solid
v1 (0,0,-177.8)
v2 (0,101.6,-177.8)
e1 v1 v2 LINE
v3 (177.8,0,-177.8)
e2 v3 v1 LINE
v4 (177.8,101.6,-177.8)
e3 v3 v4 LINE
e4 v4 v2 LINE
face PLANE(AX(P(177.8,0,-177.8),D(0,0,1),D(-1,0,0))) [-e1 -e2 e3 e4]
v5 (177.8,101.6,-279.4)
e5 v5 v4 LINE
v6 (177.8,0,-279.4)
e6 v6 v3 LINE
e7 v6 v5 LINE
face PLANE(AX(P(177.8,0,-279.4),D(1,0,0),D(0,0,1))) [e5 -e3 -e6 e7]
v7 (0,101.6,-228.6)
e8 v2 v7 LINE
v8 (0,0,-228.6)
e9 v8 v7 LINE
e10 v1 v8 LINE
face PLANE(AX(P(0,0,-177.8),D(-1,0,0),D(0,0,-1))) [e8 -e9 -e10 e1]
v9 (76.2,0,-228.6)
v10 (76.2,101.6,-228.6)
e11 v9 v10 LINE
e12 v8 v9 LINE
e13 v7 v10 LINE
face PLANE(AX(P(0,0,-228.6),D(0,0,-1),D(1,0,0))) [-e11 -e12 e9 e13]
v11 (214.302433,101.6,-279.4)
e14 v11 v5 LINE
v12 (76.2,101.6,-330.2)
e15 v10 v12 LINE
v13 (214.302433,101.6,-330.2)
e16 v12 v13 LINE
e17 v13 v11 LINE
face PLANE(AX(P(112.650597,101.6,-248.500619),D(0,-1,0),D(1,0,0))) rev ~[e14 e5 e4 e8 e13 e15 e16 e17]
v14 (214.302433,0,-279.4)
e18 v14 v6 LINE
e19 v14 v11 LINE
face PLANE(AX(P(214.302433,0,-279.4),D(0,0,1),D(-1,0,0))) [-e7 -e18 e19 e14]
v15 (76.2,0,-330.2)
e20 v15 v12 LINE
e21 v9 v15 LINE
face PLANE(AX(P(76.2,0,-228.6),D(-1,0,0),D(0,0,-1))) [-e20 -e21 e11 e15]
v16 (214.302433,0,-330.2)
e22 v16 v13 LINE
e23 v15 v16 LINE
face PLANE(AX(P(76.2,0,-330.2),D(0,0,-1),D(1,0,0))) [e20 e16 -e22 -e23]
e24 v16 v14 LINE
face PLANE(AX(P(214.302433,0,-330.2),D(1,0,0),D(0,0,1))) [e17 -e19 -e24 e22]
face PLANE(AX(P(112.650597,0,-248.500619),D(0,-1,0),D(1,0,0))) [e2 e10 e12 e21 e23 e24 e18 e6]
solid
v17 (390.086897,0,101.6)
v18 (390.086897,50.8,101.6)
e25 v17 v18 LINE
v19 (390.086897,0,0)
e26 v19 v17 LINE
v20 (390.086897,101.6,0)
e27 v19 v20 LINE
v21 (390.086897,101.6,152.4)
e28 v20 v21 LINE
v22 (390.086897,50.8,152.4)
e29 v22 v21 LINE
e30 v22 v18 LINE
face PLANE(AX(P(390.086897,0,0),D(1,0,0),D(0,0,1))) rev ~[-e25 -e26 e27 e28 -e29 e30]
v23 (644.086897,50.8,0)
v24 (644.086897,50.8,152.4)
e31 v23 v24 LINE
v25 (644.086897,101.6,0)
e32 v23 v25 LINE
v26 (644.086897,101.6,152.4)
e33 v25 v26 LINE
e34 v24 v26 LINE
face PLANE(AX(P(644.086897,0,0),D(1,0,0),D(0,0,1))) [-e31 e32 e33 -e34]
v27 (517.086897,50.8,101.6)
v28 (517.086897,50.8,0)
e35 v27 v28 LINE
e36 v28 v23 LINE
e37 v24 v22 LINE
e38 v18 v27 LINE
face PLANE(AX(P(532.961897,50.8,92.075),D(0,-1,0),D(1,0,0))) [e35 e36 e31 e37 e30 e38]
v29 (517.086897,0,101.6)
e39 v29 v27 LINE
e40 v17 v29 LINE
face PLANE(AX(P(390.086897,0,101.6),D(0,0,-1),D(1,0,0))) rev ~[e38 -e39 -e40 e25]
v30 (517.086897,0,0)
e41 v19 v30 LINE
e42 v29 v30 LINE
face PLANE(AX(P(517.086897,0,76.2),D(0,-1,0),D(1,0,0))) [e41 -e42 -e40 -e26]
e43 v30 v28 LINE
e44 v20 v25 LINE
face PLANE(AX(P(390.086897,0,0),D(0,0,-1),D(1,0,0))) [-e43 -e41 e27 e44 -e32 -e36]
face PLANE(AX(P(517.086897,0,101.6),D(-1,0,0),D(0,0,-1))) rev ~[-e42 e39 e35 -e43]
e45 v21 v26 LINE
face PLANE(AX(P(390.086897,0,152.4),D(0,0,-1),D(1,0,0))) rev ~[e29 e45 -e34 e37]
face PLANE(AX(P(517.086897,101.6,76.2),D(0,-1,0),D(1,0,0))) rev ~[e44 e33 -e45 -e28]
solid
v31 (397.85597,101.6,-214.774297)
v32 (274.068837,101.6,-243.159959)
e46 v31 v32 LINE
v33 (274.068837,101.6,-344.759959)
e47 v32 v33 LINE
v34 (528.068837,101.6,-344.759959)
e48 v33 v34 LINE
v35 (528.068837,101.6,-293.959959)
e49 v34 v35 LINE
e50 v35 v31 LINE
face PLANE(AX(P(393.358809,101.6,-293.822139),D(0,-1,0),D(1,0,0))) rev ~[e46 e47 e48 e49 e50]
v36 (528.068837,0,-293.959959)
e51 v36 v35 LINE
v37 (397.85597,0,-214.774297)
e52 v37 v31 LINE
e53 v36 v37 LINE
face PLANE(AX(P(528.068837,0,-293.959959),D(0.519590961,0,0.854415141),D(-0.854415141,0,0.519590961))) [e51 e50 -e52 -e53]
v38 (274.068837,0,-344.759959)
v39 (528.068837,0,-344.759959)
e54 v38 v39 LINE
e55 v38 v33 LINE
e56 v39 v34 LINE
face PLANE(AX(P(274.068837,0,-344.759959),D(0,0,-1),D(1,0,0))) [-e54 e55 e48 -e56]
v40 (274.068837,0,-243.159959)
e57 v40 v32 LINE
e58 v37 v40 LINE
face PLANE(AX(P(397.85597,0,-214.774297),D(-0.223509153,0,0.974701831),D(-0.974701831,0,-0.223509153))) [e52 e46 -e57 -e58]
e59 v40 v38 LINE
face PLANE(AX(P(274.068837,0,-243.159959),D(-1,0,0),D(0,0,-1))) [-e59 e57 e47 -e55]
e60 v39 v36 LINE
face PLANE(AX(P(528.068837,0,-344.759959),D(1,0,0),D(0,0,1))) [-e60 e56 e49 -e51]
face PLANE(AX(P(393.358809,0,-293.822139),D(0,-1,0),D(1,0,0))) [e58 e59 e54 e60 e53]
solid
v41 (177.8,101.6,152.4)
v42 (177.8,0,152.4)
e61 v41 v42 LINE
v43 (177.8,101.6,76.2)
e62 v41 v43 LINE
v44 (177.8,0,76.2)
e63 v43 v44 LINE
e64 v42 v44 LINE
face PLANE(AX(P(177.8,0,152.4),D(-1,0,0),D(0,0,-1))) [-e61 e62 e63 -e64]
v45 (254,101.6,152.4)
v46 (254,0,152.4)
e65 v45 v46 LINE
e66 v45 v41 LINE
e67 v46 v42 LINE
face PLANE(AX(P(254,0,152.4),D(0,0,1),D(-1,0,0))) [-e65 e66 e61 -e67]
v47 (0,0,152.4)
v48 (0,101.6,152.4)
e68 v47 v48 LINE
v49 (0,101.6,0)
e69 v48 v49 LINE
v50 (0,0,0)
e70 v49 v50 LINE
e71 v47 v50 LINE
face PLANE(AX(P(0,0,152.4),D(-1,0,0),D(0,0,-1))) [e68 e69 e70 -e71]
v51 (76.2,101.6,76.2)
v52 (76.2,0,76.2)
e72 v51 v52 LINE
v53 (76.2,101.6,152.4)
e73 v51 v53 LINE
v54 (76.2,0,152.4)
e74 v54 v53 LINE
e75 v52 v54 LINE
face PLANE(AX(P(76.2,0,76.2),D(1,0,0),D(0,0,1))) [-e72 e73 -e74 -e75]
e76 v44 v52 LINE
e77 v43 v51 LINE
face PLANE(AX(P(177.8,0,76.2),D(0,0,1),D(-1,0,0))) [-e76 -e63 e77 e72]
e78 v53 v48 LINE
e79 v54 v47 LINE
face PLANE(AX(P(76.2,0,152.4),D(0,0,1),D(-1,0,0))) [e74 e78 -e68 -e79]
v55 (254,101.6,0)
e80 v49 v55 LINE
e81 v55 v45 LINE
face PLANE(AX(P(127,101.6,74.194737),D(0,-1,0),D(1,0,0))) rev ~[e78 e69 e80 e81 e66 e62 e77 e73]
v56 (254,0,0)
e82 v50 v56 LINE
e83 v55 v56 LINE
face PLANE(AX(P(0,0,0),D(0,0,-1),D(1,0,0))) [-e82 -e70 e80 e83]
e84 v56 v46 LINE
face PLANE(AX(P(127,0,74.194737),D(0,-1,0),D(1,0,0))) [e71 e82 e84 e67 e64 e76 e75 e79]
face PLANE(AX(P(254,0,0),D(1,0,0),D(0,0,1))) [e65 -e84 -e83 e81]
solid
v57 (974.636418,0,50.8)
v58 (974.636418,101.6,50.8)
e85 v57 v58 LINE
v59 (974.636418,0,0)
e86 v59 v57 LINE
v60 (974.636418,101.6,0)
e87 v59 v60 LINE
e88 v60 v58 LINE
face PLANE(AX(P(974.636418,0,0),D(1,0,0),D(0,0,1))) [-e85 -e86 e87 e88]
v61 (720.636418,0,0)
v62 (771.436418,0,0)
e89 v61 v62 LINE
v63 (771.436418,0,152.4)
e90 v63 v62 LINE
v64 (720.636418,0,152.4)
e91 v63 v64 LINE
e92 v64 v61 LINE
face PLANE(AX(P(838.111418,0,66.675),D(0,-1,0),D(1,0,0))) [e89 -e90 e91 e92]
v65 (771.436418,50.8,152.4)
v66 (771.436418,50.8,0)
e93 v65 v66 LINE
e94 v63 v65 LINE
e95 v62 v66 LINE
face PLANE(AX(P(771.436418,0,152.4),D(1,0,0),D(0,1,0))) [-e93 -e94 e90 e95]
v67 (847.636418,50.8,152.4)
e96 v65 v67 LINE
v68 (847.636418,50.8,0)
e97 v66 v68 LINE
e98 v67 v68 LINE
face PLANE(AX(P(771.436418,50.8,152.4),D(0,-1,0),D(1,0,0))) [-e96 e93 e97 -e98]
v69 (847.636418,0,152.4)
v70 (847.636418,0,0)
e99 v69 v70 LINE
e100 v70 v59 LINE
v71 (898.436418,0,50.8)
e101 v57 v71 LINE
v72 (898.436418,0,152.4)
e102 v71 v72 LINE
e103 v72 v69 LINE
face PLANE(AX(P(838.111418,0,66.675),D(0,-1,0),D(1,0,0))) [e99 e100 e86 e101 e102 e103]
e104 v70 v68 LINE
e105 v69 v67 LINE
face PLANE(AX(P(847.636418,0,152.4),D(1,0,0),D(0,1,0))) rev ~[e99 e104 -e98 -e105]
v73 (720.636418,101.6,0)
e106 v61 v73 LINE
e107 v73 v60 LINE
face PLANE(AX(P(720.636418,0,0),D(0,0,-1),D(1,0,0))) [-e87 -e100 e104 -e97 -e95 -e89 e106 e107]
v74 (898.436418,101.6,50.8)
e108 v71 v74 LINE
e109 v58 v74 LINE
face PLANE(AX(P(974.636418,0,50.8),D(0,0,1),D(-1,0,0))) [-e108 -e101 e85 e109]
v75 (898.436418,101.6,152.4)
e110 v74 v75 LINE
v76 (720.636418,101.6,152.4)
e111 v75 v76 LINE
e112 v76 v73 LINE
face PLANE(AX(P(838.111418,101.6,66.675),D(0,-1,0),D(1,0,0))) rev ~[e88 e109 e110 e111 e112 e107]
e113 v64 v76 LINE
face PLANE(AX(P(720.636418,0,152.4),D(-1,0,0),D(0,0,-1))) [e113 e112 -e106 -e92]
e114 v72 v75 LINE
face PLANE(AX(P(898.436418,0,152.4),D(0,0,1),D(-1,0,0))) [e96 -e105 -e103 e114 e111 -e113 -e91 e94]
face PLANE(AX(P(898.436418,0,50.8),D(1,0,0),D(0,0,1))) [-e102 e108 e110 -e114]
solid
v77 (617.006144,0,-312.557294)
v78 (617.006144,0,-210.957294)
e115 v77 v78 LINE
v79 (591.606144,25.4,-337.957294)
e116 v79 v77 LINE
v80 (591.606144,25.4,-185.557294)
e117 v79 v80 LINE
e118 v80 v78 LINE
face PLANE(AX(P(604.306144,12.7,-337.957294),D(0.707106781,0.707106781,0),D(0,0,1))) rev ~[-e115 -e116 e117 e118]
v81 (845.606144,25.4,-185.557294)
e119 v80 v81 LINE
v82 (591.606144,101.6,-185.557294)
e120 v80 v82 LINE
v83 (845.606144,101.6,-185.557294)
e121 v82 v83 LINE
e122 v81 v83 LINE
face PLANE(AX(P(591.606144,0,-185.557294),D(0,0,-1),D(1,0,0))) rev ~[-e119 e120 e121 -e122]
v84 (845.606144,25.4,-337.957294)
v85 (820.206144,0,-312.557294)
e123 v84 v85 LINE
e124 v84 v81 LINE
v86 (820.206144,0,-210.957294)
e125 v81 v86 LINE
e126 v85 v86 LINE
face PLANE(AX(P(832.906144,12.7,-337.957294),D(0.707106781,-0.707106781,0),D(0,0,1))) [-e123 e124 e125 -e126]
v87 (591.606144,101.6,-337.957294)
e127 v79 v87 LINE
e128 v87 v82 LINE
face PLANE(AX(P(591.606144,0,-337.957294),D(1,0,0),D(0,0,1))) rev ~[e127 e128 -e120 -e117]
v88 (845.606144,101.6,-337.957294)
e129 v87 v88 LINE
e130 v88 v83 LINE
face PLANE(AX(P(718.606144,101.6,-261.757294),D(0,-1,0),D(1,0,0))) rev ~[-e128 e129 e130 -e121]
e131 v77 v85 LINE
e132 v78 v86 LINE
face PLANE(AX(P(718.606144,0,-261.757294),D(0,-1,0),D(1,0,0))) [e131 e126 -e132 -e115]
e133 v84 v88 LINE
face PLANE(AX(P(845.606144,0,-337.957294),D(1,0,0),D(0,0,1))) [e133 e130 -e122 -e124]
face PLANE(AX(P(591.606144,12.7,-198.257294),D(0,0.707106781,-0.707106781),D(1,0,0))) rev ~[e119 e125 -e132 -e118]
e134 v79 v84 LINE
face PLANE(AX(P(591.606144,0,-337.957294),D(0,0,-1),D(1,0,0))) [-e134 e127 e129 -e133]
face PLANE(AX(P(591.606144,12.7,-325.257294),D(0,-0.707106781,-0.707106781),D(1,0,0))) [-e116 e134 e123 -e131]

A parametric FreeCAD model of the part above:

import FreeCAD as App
import Part
import Sketcher

V = App.Vector
Q = App.Units.Quantity


def edges_at(feature, points):
    """Names of the edges that pass closest to the given points."""
    edges = feature.Shape.Edges
    near = lambda p: min(range(len(edges)), key=lambda i: edges[i].distToShape(Part.Vertex(*p))[0])
    return sorted({f"Edge{near(p) + 1}" for p in points})


def add_polygon(sketch, points):
    """Adds a closed chain of lines whose ends are joined by coincident constraints."""
    first, n = sketch.GeometryCount, len(points)
    for a, b in zip(points, points[1:] + points[:1]):
        sketch.addGeometry(Part.LineSegment(App.Vector(*a, 0), App.Vector(*b, 0)), False)
    for i in range(n):
        sketch.addConstraint(Sketcher.Constraint("Coincident", first + i, 2, first + (i + 1) % n, 1))

doc = App.newDocument("Part")
body = doc.addObject("PartDesign::Body", "Body")

# Sketch on XZ plane
sketch1 = body.newObject("Sketcher::SketchObject", "Sketch")
sketch1.AttachmentSupport = (doc.getObject("XZ_Plane"), [""])
sketch1.MapMode = "FlatFace"
add_polygon(sketch1, [(0, 152.4), (0, 0), (254, 0), (254, 152.4), (177.8, 152.4), (177.8, 76.2), (76.2, 76.2), (76.2, 152.4)])  # lines 0-7
sketch1.addConstraint([
    Sketcher.Constraint("Vertical", 0),
    Sketcher.Constraint("Horizontal", 1),
    Sketcher.Constraint("Vertical", 2),
    Sketcher.Constraint("Horizontal", 3),
    Sketcher.Constraint("Vertical", 4),
    Sketcher.Constraint("Horizontal", 5),
    Sketcher.Constraint("Vertical", 6),
    Sketcher.Constraint("Horizontal", 7),
    Sketcher.Constraint("Coincident", 0, 2, -1, 1),
    Sketcher.Constraint("Horizontal", 3, 2, 6, 2),
    Sketcher.Constraint("Equal", 3, 7),
    Sketcher.Constraint("Equal", 7, 4),
    Sketcher.Constraint("DistanceX", 1, 1, 1, 2, Q("10 in")),
    Sketcher.Constraint("DistanceX", 3, 2, 3, 1, Q("3 in")),
    Sketcher.Constraint("DistanceY", 0, 2, 0, 1, Q("6 in")),
])
pad1 = body.newObject("PartDesign::Pad", "Pad")
pad1.Profile = sketch1
pad1.Length = Q("4 in")
pad1.Reversed = True
body2 = doc.addObject("PartDesign::Body", "Body001")

# Sketch on XZ plane
sketch2 = body2.newObject("Sketcher::SketchObject", "Sketch001")
sketch2.AttachmentSupport = (doc.getObject("XZ_Plane001"), [""])
sketch2.MapMode = "FlatFace"
add_polygon(sketch2, [(390.086897, 152.4), (390.086897, 0), (644.086897, 0), (644.086897, 152.4)])  # lines 0-3
sketch2.addConstraint([
    Sketcher.Constraint("Vertical", 0),
    Sketcher.Constraint("Horizontal", 1),
    Sketcher.Constraint("Vertical", 2),
    Sketcher.Constraint("Horizontal", 3),
    Sketcher.Constraint("PointOnObject", 0, 2, -1),
    Sketcher.Constraint("DistanceX", 1, 1, 1, 2, Q("10 in")),
    Sketcher.Constraint("DistanceY", 0, 2, 0, 1, Q("6 in")),
    Sketcher.Constraint("DistanceX", -1, 1, 0, 2, Q("390.086897 mm")),
])
pad2 = body2.newObject("PartDesign::Pad", "Pad001")
pad2.Profile = sketch2
pad2.Length = Q("4 in")
pad2.Reversed = True

# Sketch on XZ plane
sketch3 = body2.newObject("Sketcher::SketchObject", "Sketch002")
sketch3.AttachmentSupport = (doc.getObject("XZ_Plane001"), [""])
sketch3.MapMode = "FlatFace"
add_polygon(sketch3, [(644.086897, 152.4), (390.086897, 152.4), (390.086897, 101.6), (517.086897, 101.6), (517.086897, 0), (644.086897, 0)])  # lines 0-5
sketch3.addConstraint([
    Sketcher.Constraint("Horizontal", 0),
    Sketcher.Constraint("Vertical", 1),
    Sketcher.Constraint("Horizontal", 2),
    Sketcher.Constraint("Vertical", 3),
    Sketcher.Constraint("Horizontal", 4),
    Sketcher.Constraint("Vertical", 5),
    Sketcher.Constraint("PointOnObject", 3, 2, -1),
    Sketcher.Constraint("Equal", 2, 4),
    Sketcher.Constraint("DistanceX", 0, 2, 0, 1, Q("10 in")),
    Sketcher.Constraint("DistanceY", 1, 2, 1, 1, Q("2 in")),
    Sketcher.Constraint("DistanceY", 3, 2, 3, 1, Q("4 in")),
    Sketcher.Constraint("DistanceX", -1, 1, 0, 2, Q("390.086897 mm")),
])
pocket1 = body2.newObject("PartDesign::Pocket", "Pocket")
pocket1.Profile = sketch3
pocket1.Length = Q("2 in")
body3 = doc.addObject("PartDesign::Body", "Body002")

# Sketch on XZ plane
sketch4 = body3.newObject("Sketcher::SketchObject", "Sketch003")
sketch4.AttachmentSupport = (doc.getObject("XZ_Plane002"), [""])
sketch4.MapMode = "FlatFace"
add_polygon(sketch4, [(720.636418, 152.4), (720.636418, 0), (974.636418, 0), (974.636418, 50.8), (898.436418, 50.8), (898.436418, 152.4)])  # lines 0-5
sketch4.addConstraint([
    Sketcher.Constraint("Vertical", 0),
    Sketcher.Constraint("Horizontal", 1),
    Sketcher.Constraint("Vertical", 2),
    Sketcher.Constraint("Horizontal", 3),
    Sketcher.Constraint("Vertical", 4),
    Sketcher.Constraint("Horizontal", 5),
    Sketcher.Constraint("PointOnObject", 0, 2, -1),
    Sketcher.Constraint("DistanceX", 1, 1, 1, 2, Q("10 in")),
    Sketcher.Constraint("DistanceX", 3, 2, 3, 1, Q("3 in")),
    Sketcher.Constraint("DistanceY", 0, 2, 0, 1, Q("6 in")),
    Sketcher.Constraint("DistanceY", 2, 1, 2, 2, Q("2 in")),
    Sketcher.Constraint("DistanceX", -1, 1, 0, 2, Q("720.636418 mm")),
])
pad3 = body3.newObject("PartDesign::Pad", "Pad002")
pad3.Profile = sketch4
pad3.Length = Q("4 in")
pad3.Reversed = True

# Sketch on XY plane
sketch5 = body3.newObject("Sketcher::SketchObject", "Sketch004")
sketch5.AttachmentSupport = (doc.getObject("XY_Plane002"), [""])
sketch5.MapMode = "FlatFace"
sketch5.AttachmentOffset = App.Placement(V(0, 0, 6 * 25.4), App.Rotation())
add_polygon(sketch5, [(771.436418, 50.8), (771.436418, 0), (847.636418, 0), (847.636418, 50.8)])  # lines 0-3
sketch5.addConstraint([
    Sketcher.Constraint("Vertical", 0),
    Sketcher.Constraint("Horizontal", 1),
    Sketcher.Constraint("Vertical", 2),
    Sketcher.Constraint("Horizontal", 3),
    Sketcher.Constraint("PointOnObject", 0, 2, -1),
    Sketcher.Constraint("DistanceX", 1, 1, 1, 2, Q("3 in")),
    Sketcher.Constraint("DistanceY", 0, 2, 0, 1, Q("2 in")),
    Sketcher.Constraint("DistanceX", -1, 1, 0, 2, Q("771.436418 mm")),
])
pocket2 = body3.newObject("PartDesign::Pocket", "Pocket001")
pocket2.Profile = sketch5
pocket2.Length = Q("6 in")
body4 = doc.addObject("PartDesign::Body", "Body003")

# Sketch on XZ plane
sketch6 = body4.newObject("Sketcher::SketchObject", "Sketch005")
sketch6.AttachmentSupport = (doc.getObject("XZ_Plane003"), [""])
sketch6.MapMode = "FlatFace"
add_polygon(sketch6, [(177.8, -177.8), (0, -177.8), (0, -228.6), (76.2, -228.6), (76.2, -330.2), (214.302433, -330.2), (214.302433, -279.4), (177.8, -279.4)])  # lines 0-7
sketch6.addConstraint([
    Sketcher.Constraint("Horizontal", 0),
    Sketcher.Constraint("Vertical", 1),
    Sketcher.Constraint("Horizontal", 2),
    Sketcher.Constraint("Vertical", 3),
    Sketcher.Constraint("Horizontal", 4),
    Sketcher.Constraint("Vertical", 5),
    Sketcher.Constraint("Horizontal", 6),
    Sketcher.Constraint("Vertical", 7),
    Sketcher.Constraint("PointOnObject", 0, 2, -2),
    Sketcher.Constraint("Equal", 1, 5),
    Sketcher.Constraint("DistanceX", 0, 2, 0, 1, Q("7 in")),
    Sketcher.Constraint("DistanceX", 2, 1, 2, 2, Q("3 in")),
    Sketcher.Constraint("DistanceY", 1, 2, 1, 1, Q("2 in")),
    Sketcher.Constraint("DistanceY", 3, 2, 3, 1, Q("4 in")),
    Sketcher.Constraint("DistanceY", 0, 2, -1, 1, Q("7 in")),
    Sketcher.Constraint("DistanceX", 4, 1, 4, 2, Q("138.102433 mm")),
])
pad4 = body4.newObject("PartDesign::Pad", "Pad003")
pad4.Profile = sketch6
pad4.Length = Q("4 in")
pad4.Reversed = True
body5 = doc.addObject("PartDesign::Body", "Body004")

# Sketch on XZ plane
sketch7 = body5.newObject("Sketcher::SketchObject", "Sketch006")
sketch7.AttachmentSupport = (doc.getObject("XZ_Plane004"), [""])
sketch7.MapMode = "FlatFace"
add_polygon(sketch7, [(274.068837, -243.159959), (274.068837, -344.759959), (528.068837, -344.759959), (528.068837, -293.959959), (397.85597, -214.774297)])  # lines 0-4
sketch7.addConstraint([
    Sketcher.Constraint("Vertical", 0),
    Sketcher.Constraint("Horizontal", 1),
    Sketcher.Constraint("Vertical", 2),
    Sketcher.Constraint("DistanceX", 1, 1, 1, 2, Q("10 in")),
    Sketcher.Constraint("DistanceY", 0, 2, 0, 1, Q("4 in")),
    Sketcher.Constraint("DistanceY", 2, 1, 2, 2, Q("2 in")),
    Sketcher.Constraint("Distance", 3, Q("6 in")),
    Sketcher.Constraint("Distance", 4, Q("5 in")),
    Sketcher.Constraint("DistanceY", 0, 2, -1, 1, Q("344.759959 mm")),
    Sketcher.Constraint("DistanceX", -1, 1, 3, 2, Q("397.85597 mm")),
])
pad5 = body5.newObject("PartDesign::Pad", "Pad004")
pad5.Profile = sketch7
pad5.Length = Q("4 in")
pad5.Reversed = True
body6 = doc.addObject("PartDesign::Body", "Body005")

# Sketch on XZ plane
sketch8 = body6.newObject("Sketcher::SketchObject", "Sketch007")
sketch8.AttachmentSupport = (doc.getObject("XZ_Plane005"), [""])
sketch8.MapMode = "FlatFace"
add_polygon(sketch8, [(591.606144, -185.557294), (591.606144, -337.957294), (845.606144, -337.957294), (845.606144, -185.557294)])  # lines 0-3
sketch8.addConstraint([
    Sketcher.Constraint("Vertical", 0),
    Sketcher.Constraint("Horizontal", 1),
    Sketcher.Constraint("Vertical", 2),
    Sketcher.Constraint("Horizontal", 3),
    Sketcher.Constraint("DistanceX", 1, 1, 1, 2, Q("10 in")),
    Sketcher.Constraint("DistanceY", 0, 2, 0, 1, Q("6 in")),
    Sketcher.Constraint("DistanceX", -1, 1, 0, 2, Q("591.606144 mm")),
    Sketcher.Constraint("DistanceY", 0, 2, -1, 1, Q("337.957294 mm")),
])
pad6 = body6.newObject("PartDesign::Pad", "Pad005")
pad6.Profile = sketch8
pad6.Length = Q("4 in")
pad6.Reversed = True
doc.recompute()

chamfer = body6.newObject("PartDesign::Chamfer", "Chamfer")
chamfer.Base = (pad6, edges_at(pad6, [
    (591.606, 0, -261.757),
    (718.606, 0, -337.957),
    (845.606, 0, -261.757),
    (718.606, 0, -185.557),
]))
chamfer.Size = Q("1 in")
body7 = doc.addObject("PartDesign::Body", "Body006")

# Sketch on XZ plane
sketch9 = body7.newObject("Sketcher::SketchObject", "Sketch008")
sketch9.AttachmentSupport = (doc.getObject("XZ_Plane006"), [""])
sketch9.MapMode = "FlatFace"
add_polygon(sketch9, [(0, 152.4), (0, 0), (254, 0), (254, 152.4), (177.8, 152.4), (177.8, 76.2), (76.2, 76.2), (76.2, 152.4)])  # lines 0-7
sketch9.addConstraint([
    Sketcher.Constraint("Vertical", 0),
    Sketcher.Constraint("Horizontal", 1),
    Sketcher.Constraint("Vertical", 2),
    Sketcher.Constraint("Horizontal", 3),
    Sketcher.Constraint("Vertical", 4),
    Sketcher.Constraint("Horizontal", 5),
    Sketcher.Constraint("Vertical", 6),
    Sketcher.Constraint("Horizontal", 7),
    Sketcher.Constraint("Coincident", 0, 2, -1, 1),
    Sketcher.Constraint("Horizontal", 3, 2, 6, 2),
    Sketcher.Constraint("Equal", 3, 7),
    Sketcher.Constraint("Equal", 7, 4),
    Sketcher.Constraint("DistanceX", 1, 1, 1, 2, Q("10 in")),
    Sketcher.Constraint("DistanceX", 3, 2, 3, 1, Q("3 in")),
    Sketcher.Constraint("DistanceY", 0, 2, 0, 1, Q("6 in")),
])
pad7 = body7.newObject("PartDesign::Pad", "Pad006")
pad7.Profile = sketch9
pad7.Length = Q("1 in")
pad7.Reversed = True
doc.recompute()

boolean = body.newObject("PartDesign::Boolean", "Boolean")
boolean.Type = "Fuse"
boolean.addObjects([body7])

# Sketch on XZ plane
sketch10 = body.newObject("Sketcher::SketchObject", "Sketch009")
sketch10.AttachmentSupport = (doc.getObject("XZ_Plane"), [""])
sketch10.MapMode = "FlatFace"
add_polygon(sketch10, [(0, 152.4), (0, 0), (254, 0), (254, 152.4), (177.8, 152.4), (177.8, 76.2), (76.2, 76.2), (76.2, 152.4)])  # lines 0-7
sketch10.addConstraint([
    Sketcher.Constraint("Vertical", 0),
    Sketcher.Constraint("Horizontal", 1),
    Sketcher.Constraint("Vertical", 2),
    Sketcher.Constraint("Horizontal", 3),
    Sketcher.Constraint("Vertical", 4),
    Sketcher.Constraint("Horizontal", 5),
    Sketcher.Constraint("Vertical", 6),
    Sketcher.Constraint("Horizontal", 7),
    Sketcher.Constraint("Coincident", 0, 2, -1, 1),
    Sketcher.Constraint("Horizontal", 3, 2, 6, 2),
    Sketcher.Constraint("Equal", 3, 7),
    Sketcher.Constraint("Equal", 7, 4),
    Sketcher.Constraint("DistanceX", 1, 1, 1, 2, Q("10 in")),
    Sketcher.Constraint("DistanceX", 3, 2, 3, 1, Q("3 in")),
    Sketcher.Constraint("DistanceY", 0, 2, 0, 1, Q("6 in")),
])
pad8 = body.newObject("PartDesign::Pad", "Pad007")
pad8.Profile = sketch10
pad8.Length = Q("2.94 in")
pad8.Reversed = True

doc.recompute()
